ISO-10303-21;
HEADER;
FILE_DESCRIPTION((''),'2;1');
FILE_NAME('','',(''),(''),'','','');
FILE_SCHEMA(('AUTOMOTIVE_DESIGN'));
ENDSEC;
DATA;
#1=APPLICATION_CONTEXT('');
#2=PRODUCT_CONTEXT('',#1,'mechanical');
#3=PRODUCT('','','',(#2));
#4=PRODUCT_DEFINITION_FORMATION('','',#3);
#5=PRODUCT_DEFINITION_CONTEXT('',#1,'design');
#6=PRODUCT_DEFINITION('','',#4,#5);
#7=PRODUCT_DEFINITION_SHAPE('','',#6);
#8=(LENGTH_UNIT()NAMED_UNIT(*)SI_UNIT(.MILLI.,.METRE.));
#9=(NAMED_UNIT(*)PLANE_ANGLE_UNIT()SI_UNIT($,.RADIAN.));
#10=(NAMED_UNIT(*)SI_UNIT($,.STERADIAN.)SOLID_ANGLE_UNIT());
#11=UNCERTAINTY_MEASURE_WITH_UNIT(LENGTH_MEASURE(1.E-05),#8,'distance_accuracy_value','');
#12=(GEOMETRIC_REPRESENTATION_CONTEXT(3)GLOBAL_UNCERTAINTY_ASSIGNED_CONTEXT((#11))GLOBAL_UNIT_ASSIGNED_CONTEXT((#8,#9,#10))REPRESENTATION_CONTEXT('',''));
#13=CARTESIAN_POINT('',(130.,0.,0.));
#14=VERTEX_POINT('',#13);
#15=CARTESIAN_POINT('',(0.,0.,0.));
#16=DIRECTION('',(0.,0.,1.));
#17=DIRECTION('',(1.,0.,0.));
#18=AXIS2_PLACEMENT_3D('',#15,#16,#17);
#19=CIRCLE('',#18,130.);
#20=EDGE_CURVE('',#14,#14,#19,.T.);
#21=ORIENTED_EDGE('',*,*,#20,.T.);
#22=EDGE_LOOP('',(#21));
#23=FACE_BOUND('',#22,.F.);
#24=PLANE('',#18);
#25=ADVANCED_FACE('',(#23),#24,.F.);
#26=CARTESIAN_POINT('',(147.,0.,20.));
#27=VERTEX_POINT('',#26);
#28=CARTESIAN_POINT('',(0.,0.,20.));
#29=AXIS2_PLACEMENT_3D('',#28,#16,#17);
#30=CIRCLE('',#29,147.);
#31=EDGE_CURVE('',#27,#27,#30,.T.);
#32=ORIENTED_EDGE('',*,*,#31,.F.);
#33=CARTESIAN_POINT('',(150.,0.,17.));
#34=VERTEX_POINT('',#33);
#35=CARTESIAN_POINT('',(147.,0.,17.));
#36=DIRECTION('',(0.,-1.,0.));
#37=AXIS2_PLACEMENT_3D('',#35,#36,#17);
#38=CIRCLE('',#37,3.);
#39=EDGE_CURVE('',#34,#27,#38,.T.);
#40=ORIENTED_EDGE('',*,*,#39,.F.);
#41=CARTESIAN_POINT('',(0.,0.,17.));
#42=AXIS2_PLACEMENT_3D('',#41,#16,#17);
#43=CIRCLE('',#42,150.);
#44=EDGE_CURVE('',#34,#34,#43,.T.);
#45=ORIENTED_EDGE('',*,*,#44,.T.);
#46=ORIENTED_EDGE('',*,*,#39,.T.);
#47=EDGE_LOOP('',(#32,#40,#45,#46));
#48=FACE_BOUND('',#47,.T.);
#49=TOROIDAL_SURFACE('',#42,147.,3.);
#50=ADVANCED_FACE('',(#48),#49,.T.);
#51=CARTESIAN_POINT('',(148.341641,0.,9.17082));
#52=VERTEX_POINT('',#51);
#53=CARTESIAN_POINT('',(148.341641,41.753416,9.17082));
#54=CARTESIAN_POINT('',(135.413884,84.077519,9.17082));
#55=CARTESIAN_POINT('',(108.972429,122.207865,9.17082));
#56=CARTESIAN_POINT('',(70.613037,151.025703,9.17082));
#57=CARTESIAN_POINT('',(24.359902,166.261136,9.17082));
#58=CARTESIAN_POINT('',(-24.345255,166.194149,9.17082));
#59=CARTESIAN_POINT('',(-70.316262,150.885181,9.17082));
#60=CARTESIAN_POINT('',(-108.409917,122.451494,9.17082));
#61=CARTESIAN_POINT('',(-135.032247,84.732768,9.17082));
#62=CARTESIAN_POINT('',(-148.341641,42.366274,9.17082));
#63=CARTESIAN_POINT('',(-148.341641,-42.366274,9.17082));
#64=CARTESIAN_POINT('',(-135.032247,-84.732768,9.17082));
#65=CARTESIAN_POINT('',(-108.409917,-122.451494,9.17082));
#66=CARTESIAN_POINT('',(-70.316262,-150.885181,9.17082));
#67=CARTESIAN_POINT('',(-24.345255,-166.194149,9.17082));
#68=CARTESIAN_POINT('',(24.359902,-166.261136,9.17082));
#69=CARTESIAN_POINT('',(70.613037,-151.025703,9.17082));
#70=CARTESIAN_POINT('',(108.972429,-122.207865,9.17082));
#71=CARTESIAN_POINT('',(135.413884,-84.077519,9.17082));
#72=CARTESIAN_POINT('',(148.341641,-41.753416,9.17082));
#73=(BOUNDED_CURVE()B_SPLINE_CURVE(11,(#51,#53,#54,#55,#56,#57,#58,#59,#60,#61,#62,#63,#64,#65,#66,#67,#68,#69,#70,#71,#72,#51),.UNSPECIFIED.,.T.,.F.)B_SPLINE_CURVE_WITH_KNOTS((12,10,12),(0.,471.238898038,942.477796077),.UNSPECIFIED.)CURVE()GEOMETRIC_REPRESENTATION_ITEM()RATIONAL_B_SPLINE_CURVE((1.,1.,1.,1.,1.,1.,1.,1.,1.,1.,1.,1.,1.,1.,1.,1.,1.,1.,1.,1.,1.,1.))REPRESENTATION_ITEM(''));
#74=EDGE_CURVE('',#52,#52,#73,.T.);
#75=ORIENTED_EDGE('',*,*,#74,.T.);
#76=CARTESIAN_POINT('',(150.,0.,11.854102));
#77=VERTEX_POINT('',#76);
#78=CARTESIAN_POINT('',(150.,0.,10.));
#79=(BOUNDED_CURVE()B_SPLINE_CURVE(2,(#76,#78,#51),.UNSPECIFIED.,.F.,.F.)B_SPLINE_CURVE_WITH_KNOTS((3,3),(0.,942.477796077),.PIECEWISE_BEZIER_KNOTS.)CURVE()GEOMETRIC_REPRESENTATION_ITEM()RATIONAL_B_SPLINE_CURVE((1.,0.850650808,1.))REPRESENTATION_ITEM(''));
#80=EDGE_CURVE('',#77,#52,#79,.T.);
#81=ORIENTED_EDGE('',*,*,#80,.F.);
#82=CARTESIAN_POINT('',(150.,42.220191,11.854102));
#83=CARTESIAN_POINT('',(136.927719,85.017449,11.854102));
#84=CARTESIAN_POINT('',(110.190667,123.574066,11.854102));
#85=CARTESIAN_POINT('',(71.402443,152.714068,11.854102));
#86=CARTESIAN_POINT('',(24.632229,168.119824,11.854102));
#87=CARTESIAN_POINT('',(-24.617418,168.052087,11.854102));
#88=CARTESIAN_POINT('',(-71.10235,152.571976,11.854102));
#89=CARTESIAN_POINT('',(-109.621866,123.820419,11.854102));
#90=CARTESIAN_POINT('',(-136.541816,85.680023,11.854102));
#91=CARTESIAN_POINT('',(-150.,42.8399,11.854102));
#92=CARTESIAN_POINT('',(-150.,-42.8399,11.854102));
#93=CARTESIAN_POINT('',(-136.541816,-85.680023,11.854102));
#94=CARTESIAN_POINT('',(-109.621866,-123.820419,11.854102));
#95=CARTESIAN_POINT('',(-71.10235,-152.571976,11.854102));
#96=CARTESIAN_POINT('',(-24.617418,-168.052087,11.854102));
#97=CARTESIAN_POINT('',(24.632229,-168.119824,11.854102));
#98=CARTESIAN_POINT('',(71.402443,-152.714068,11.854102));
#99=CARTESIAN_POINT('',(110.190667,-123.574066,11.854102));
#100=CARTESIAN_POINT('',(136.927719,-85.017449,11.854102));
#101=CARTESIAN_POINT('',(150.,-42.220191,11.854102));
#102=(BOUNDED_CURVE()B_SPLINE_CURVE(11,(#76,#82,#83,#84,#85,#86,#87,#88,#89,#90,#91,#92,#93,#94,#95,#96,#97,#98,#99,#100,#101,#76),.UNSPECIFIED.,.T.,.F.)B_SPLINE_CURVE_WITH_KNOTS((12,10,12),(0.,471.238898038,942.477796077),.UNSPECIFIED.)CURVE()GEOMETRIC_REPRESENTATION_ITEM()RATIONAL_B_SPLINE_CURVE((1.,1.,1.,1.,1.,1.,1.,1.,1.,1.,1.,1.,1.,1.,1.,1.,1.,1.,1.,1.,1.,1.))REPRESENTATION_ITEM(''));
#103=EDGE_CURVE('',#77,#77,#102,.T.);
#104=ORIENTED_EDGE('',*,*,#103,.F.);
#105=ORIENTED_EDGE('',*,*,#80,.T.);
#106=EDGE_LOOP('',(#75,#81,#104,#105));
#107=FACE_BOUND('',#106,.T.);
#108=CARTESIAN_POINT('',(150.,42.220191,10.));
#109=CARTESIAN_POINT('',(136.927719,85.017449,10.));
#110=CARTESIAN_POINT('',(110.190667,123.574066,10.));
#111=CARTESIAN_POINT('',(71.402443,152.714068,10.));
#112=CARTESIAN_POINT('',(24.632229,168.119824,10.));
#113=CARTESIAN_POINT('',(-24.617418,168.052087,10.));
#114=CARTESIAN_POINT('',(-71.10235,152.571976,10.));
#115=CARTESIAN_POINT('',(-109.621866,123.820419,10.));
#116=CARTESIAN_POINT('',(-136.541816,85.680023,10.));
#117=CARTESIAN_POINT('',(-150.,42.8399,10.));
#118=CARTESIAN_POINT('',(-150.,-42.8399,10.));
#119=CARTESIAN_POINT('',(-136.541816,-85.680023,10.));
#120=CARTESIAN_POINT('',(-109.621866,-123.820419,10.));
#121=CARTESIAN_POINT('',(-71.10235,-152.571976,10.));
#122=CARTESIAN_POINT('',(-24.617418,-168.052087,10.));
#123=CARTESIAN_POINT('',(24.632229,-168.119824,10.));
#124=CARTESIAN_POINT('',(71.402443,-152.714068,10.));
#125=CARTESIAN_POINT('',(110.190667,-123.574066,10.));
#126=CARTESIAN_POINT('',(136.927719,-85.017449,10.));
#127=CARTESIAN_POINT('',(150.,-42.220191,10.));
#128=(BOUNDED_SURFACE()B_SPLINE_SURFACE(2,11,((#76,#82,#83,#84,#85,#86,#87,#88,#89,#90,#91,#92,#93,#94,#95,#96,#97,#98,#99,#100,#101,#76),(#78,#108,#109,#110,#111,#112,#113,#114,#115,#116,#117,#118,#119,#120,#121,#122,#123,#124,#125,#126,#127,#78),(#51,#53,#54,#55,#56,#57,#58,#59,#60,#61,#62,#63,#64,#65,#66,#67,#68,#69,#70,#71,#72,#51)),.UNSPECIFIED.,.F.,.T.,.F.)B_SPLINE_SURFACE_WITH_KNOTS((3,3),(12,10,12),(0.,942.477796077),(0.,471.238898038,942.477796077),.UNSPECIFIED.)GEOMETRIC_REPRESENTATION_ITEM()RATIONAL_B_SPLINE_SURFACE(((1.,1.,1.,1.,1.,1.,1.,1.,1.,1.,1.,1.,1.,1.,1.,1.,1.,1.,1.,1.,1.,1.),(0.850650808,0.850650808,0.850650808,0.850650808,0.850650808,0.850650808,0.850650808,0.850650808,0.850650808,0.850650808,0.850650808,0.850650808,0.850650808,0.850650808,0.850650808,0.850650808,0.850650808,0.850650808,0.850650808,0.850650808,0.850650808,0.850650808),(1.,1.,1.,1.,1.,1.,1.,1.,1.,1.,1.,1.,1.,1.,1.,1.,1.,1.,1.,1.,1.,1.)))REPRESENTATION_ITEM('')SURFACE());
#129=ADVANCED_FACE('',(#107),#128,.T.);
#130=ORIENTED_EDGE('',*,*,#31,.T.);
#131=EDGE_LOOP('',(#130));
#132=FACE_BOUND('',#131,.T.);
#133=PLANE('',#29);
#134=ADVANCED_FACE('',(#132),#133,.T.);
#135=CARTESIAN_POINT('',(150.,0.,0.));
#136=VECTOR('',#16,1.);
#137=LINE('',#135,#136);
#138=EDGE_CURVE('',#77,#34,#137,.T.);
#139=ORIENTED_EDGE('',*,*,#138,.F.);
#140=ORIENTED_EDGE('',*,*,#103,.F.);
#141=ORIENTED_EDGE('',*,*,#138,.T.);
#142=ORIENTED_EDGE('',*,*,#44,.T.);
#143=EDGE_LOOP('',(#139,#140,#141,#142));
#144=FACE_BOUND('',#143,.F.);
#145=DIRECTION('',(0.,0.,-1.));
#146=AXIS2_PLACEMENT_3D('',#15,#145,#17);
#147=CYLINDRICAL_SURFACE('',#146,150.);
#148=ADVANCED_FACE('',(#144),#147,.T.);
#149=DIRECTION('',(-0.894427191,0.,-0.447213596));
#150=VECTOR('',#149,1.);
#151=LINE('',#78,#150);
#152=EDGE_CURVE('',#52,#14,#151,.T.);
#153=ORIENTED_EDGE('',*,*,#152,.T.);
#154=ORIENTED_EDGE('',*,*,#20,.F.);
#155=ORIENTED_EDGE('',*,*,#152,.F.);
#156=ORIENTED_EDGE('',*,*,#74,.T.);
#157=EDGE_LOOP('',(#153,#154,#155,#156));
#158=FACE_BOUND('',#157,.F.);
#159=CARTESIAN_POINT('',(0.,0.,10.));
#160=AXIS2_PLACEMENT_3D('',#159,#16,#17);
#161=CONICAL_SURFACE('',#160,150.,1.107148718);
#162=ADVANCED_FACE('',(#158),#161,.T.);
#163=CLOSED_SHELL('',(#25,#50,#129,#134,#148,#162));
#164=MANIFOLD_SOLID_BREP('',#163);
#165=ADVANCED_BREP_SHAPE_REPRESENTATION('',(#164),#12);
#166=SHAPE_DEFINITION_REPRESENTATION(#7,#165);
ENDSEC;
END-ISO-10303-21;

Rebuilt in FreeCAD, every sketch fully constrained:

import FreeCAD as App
import Part
import Sketcher


def edges_at(feature, points):
    """Names of the edges that pass closest to the given points."""
    edges = feature.Shape.Edges
    near = lambda p: min(range(len(edges)), key=lambda i: edges[i].distToShape(Part.Vertex(*p))[0])
    return sorted({f"Edge{near(p) + 1}" for p in points})

doc = App.newDocument("Part")
body = doc.addObject("PartDesign::Body", "Body")

# Sketch on XY plane
sketch1 = body.newObject("Sketcher::SketchObject", "Sketch")
sketch1.AttachmentSupport = (doc.getObject("XY_Plane"), [""])
sketch1.MapMode = "FlatFace"
sketch1.addGeometry(Part.Circle(App.Vector(0, 0, 0), App.Vector(0, 0, 1), 150), False)
sketch1.addConstraint([
    Sketcher.Constraint("Coincident", 0, 3, -1, 1),
    Sketcher.Constraint("Diameter", 0, 300.0),
])
pad1 = body.newObject("PartDesign::Pad", "Pad")
pad1.Profile = sketch1
pad1.Length = 20
doc.recompute()

chamfer = body.newObject("PartDesign::Chamfer", "Chamfer")
chamfer.Base = (pad1, edges_at(pad1, [(-150, 0, 0)]))
chamfer.ChamferType = "Two distances"
chamfer.Size = 10
chamfer.Size2 = 20
doc.recompute()

fillet = body.newObject("PartDesign::Fillet", "Fillet")
fillet.Base = (chamfer, edges_at(chamfer, [(-150, 0, 20)]))
fillet.Radius = 3
doc.recompute()

fillet2 = body.newObject("PartDesign::Fillet", "Fillet001")
fillet2.Base = (fillet, edges_at(fillet, [(-150, 0, 10)]))
fillet2.Radius = 3

doc.recompute()
